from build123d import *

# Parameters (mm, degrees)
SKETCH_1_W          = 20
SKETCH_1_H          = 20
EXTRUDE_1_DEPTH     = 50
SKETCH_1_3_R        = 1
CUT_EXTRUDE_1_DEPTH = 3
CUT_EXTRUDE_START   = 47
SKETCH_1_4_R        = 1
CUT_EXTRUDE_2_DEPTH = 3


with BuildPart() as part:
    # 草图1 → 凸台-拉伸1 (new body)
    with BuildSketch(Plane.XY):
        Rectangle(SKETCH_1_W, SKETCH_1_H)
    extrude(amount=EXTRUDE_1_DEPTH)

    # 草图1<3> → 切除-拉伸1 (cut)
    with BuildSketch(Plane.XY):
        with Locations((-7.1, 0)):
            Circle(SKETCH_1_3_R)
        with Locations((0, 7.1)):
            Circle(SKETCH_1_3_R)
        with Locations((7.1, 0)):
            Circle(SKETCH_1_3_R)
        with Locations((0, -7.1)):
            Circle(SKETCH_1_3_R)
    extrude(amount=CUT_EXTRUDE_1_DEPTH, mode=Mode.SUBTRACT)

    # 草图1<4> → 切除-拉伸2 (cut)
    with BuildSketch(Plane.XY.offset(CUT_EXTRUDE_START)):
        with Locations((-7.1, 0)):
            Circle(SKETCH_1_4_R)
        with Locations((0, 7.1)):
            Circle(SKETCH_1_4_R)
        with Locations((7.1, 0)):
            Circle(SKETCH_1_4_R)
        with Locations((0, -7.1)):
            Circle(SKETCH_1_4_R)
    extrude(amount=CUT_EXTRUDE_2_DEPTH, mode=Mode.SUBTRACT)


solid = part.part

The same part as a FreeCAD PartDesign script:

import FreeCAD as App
import Part
import Sketcher
from FreeCAD import Vector
Q = App.Units.Quantity

doc = App.newDocument("Part")
body = doc.addObject("PartDesign::Body", "Body")

sketch1 = body.newObject("Sketcher::SketchObject", "Sketch")
sketch1.AttachmentSupport = (doc.getObject("XY_Plane"), [""])
sketch1.MapMode = "FlatFace"
sketch1.addGeometry([
    Part.LineSegment(Vector(-10, 10, 0), Vector(-10, -10, 0)),
    Part.LineSegment(Vector(-10, -10, 0), Vector(10, -10, 0)),
    Part.LineSegment(Vector(10, -10, 0), Vector(10, 10, 0)),
    Part.LineSegment(Vector(10, 10, 0), Vector(-10, 10, 0)),
], False)
sketch1.addConstraint([
    Sketcher.Constraint("Coincident", 0, 2, 1, 1),
    Sketcher.Constraint("Coincident", 1, 2, 2, 1),
    Sketcher.Constraint("Coincident", 2, 2, 3, 1),
    Sketcher.Constraint("Coincident", 3, 2, 0, 1),
    Sketcher.Constraint("Vertical", 0),
    Sketcher.Constraint("Horizontal", 1),
    Sketcher.Constraint("Vertical", 2),
    Sketcher.Constraint("Horizontal", 3),
    Sketcher.Constraint("Symmetric", 0, 2, 2, 2, -1, 1),
    Sketcher.Constraint("Equal", 3, 0),
    Sketcher.Constraint("DistanceX", 1, 1, 1, 2, Q("20 mm")),
])
pad1 = body.newObject("PartDesign::Pad", "Pad")
pad1.Profile = sketch1
pad1.Length = 50

sketch2 = body.newObject("Sketcher::SketchObject", "Sketch001")
sketch2.AttachmentSupport = (doc.getObject("XY_Plane"), [""])
sketch2.MapMode = "FlatFace"
sketch2.addGeometry([
    Part.Circle(Vector(-7.1, 0, 0), Vector(0, 0, 1), 1),
    Part.Circle(Vector(0, 7.1, 0), Vector(0, 0, 1), 1),
    Part.Circle(Vector(7.1, 0, 0), Vector(0, 0, 1), 1),
    Part.Circle(Vector(0, -7.1, 0), Vector(0, 0, 1), 1),
], False)
sketch2.addConstraint([
    Sketcher.Constraint("Equal", 0, 1),
    Sketcher.Constraint("Equal", 1, 2),
    Sketcher.Constraint("Equal", 2, 3),
    Sketcher.Constraint("Symmetric", 0, 3, 2, 3, -1, 1),
    Sketcher.Constraint("Symmetric", 1, 3, 3, 3, -1, 1),
    Sketcher.Constraint("PointOnObject", 0, 3, -1),
    Sketcher.Constraint("PointOnObject", 1, 3, -2),
    Sketcher.Constraint("Diameter", 0, Q("2 mm")),
    Sketcher.Constraint("DistanceX", 0, 3, -1, 1, Q("7.1 mm")),
    Sketcher.Constraint("DistanceY", -1, 1, 1, 3, Q("7.1 mm")),
])
pocket1 = body.newObject("PartDesign::Pocket", "Pocket")
pocket1.Profile = sketch2
pocket1.Length = 3
pocket1.Reversed = True

sketch3 = body.newObject("Sketcher::SketchObject", "Sketch002")
sketch3.AttachmentSupport = (doc.getObject("XY_Plane"), [""])
sketch3.MapMode = "FlatFace"
sketch3.AttachmentOffset = App.Placement(Vector(0, 0, 47), App.Rotation())
sketch3.addGeometry([
    Part.Circle(Vector(-7.1, 0, 0), Vector(0, 0, 1), 1),
    Part.Circle(Vector(0, 7.1, 0), Vector(0, 0, 1), 1),
    Part.Circle(Vector(7.1, 0, 0), Vector(0, 0, 1), 1),
    Part.Circle(Vector(0, -7.1, 0), Vector(0, 0, 1), 1),
], False)
sketch3.addConstraint([
    Sketcher.Constraint("Equal", 0, 1),
    Sketcher.Constraint("Equal", 1, 2),
    Sketcher.Constraint("Equal", 2, 3),
    Sketcher.Constraint("Symmetric", 0, 3, 2, 3, -1, 1),
    Sketcher.Constraint("Symmetric", 1, 3, 3, 3, -1, 1),
    Sketcher.Constraint("PointOnObject", 0, 3, -1),
    Sketcher.Constraint("PointOnObject", 1, 3, -2),
    Sketcher.Constraint("Diameter", 0, Q("2 mm")),
    Sketcher.Constraint("DistanceX", 0, 3, -1, 1, Q("7.1 mm")),
    Sketcher.Constraint("DistanceY", -1, 1, 1, 3, Q("7.1 mm")),
])
pocket2 = body.newObject("PartDesign::Pocket", "Pocket001")
pocket2.Profile = sketch3
pocket2.Length = 3
pocket2.Reversed = True

doc.recompute()
